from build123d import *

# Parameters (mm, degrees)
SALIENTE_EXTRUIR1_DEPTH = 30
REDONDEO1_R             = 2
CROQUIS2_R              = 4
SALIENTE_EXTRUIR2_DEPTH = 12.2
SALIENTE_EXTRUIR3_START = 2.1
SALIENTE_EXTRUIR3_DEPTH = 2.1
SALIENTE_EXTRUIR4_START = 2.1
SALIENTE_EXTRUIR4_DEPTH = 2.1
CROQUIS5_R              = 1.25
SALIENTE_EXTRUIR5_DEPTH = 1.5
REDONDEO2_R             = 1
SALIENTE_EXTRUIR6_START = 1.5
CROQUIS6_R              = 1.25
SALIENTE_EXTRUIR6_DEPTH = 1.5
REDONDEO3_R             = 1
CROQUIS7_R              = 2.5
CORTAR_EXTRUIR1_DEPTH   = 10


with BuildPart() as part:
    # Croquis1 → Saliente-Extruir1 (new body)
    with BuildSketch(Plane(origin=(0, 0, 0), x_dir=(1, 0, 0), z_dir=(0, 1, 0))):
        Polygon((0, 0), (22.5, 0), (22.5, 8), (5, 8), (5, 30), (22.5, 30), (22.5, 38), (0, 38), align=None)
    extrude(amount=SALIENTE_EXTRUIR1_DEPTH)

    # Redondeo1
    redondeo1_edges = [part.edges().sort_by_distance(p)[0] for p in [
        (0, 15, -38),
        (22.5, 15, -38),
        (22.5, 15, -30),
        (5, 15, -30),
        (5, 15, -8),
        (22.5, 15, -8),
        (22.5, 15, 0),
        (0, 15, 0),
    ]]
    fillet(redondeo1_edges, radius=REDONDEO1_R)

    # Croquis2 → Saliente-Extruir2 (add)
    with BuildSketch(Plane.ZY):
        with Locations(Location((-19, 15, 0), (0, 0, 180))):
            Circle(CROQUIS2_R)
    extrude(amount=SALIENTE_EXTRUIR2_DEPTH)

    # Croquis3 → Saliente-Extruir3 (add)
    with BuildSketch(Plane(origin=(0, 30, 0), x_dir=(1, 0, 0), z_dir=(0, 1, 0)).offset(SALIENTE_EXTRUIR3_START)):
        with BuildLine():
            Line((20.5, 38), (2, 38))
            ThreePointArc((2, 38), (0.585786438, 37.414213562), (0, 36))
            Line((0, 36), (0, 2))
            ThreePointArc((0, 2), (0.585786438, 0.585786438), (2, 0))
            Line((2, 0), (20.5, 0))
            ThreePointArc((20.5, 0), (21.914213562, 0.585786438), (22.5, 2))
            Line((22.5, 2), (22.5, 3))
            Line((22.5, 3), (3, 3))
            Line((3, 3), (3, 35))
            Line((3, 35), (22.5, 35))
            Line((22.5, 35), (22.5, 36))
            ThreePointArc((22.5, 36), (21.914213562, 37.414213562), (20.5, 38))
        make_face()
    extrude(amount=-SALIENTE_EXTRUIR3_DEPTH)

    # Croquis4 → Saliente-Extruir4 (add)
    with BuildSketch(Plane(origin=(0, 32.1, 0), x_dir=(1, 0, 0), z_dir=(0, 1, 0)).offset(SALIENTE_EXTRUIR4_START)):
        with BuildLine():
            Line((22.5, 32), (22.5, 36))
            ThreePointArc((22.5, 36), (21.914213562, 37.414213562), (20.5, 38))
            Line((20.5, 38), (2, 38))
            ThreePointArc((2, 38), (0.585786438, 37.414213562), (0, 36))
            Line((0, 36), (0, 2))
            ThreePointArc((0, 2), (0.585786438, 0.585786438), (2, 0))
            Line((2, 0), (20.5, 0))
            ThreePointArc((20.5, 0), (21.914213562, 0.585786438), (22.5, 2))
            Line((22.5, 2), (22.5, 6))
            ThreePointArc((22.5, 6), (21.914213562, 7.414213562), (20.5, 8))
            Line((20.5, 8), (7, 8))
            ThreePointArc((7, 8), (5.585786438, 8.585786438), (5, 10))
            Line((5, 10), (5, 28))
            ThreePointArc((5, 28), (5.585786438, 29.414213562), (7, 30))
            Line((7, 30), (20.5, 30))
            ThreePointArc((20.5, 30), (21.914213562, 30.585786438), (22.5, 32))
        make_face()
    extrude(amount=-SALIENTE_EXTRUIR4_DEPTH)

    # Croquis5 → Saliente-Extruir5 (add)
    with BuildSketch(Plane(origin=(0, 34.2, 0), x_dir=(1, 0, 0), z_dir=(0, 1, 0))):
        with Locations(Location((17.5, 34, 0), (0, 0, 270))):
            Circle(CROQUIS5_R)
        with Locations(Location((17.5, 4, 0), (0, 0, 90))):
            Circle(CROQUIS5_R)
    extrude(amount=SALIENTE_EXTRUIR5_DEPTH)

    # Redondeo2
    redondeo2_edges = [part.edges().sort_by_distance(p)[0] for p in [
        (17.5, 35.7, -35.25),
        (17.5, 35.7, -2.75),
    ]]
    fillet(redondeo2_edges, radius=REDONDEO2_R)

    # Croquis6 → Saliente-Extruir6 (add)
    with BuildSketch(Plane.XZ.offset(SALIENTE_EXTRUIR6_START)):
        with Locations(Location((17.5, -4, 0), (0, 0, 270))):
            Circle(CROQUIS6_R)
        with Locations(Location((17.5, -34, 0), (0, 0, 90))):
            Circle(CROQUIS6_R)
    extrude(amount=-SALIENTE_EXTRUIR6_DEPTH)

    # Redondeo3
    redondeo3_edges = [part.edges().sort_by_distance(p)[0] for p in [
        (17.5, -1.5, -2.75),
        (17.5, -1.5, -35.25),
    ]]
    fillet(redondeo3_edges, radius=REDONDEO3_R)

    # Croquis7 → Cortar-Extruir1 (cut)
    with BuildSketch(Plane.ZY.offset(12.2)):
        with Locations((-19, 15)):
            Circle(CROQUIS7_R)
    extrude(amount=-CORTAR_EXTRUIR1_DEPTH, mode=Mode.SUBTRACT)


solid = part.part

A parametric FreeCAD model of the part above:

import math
import FreeCAD as App
import Part
import Sketcher

V = App.Vector
Q = App.Units.Quantity


def edges_at(feature, points):
    """Names of the edges that pass closest to the given points."""
    edges = feature.Shape.Edges
    near = lambda p: min(range(len(edges)), key=lambda i: edges[i].distToShape(Part.Vertex(*p))[0])
    return sorted({f"Edge{near(p) + 1}" for p in points})


def add_polygon(sketch, points):
    """Adds a closed chain of lines whose ends are joined by coincident constraints."""
    first, n = sketch.GeometryCount, len(points)
    for a, b in zip(points, points[1:] + points[:1]):
        sketch.addGeometry(Part.LineSegment(App.Vector(*a, 0), App.Vector(*b, 0)), False)
    for i in range(n):
        sketch.addConstraint(Sketcher.Constraint("Coincident", first + i, 2, first + (i + 1) % n, 1))

doc = App.newDocument("Part")
body = doc.addObject("PartDesign::Body", "Body")

# Sketch on XZ plane
sketch1 = body.newObject("Sketcher::SketchObject", "Sketch")
sketch1.AttachmentSupport = (doc.getObject("XZ_Plane"), [""])
sketch1.MapMode = "FlatFace"
add_polygon(sketch1, [(0, 0), (22, 0), (22, -8), (5, -8), (5, -30), (22, -30), (22, -38), (0, -38)])  # lines 0-7
sketch1.addConstraint(Sketcher.Constraint("Horizontal", 0))
sketch1.addConstraint(Sketcher.Constraint("Vertical", 1))
sketch1.addConstraint(Sketcher.Constraint("Horizontal", 2))
sketch1.addConstraint(Sketcher.Constraint("Vertical", 3))
sketch1.addConstraint(Sketcher.Constraint("Horizontal", 4))
sketch1.addConstraint(Sketcher.Constraint("Vertical", 5))
sketch1.addConstraint(Sketcher.Constraint("Horizontal", 6))
sketch1.addConstraint(Sketcher.Constraint("Vertical", 7))
sketch1.addConstraint(Sketcher.Constraint("Coincident", 7, 2, -1, 1))
sketch1.addConstraint(Sketcher.Constraint("Vertical", 1, 2, 4, 2))
sketch1.addConstraint(Sketcher.Constraint("Equal", 1, 5))
sketch1.addConstraint(Sketcher.Constraint("DistanceY", 1, 2, 1, 1, Q("8 mm")))
sketch1.addConstraint(Sketcher.Constraint("DistanceY", 3, 2, 3, 1, Q("22 mm")))
sketch1.addConstraint(Sketcher.Constraint("DistanceX", 0, 1, 0, 2, Q("22.5 mm")))
sketch1.addConstraint(Sketcher.Constraint("DistanceX", 2, 2, 2, 1, Q("17.5 mm")))
pad1 = body.newObject("PartDesign::Pad", "Pad")
pad1.Profile = sketch1
pad1.Length = 30
pad1.Reversed = True
doc.recompute()

fillet = body.newObject("PartDesign::Fillet", "Fillet")
fillet.Base = (pad1, edges_at(pad1, [
    (0, 15, -38),
    (22.5, 15, -38),
    (22.5, 15, -30),
    (5, 15, -30),
    (5, 15, -8),
    (22.5, 15, -8),
    (22.5, 15, 0),
    (0, 15, 0),
]))
fillet.Radius = 2

# Sketch on YZ plane
sketch2 = body.newObject("Sketcher::SketchObject", "Sketch001")
sketch2.AttachmentSupport = (doc.getObject("YZ_Plane"), [""])
sketch2.MapMode = "FlatFace"
sketch2.addGeometry(Part.Circle(V(15, -19, 0), V(0, 0, 1), 4), False)
sketch2.addConstraint(Sketcher.Constraint("Diameter", 0, Q("8 mm")))
sketch2.addConstraint(Sketcher.Constraint("DistanceX", -1, 1, 0, 3, Q("15 mm")))
sketch2.addConstraint(Sketcher.Constraint("DistanceY", 0, 3, -1, 1, Q("19 mm")))
pad2 = body.newObject("PartDesign::Pad", "Pad001")
pad2.Profile = sketch2
pad2.Length = 12.2
pad2.Reversed = True

# Sketch on XZ plane
sketch3 = body.newObject("Sketcher::SketchObject", "Sketch002")
sketch3.AttachmentSupport = (doc.getObject("XZ_Plane"), [""])
sketch3.MapMode = "FlatFace"
sketch3.AttachmentOffset = App.Placement(V(0, 0, -32.1), App.Rotation())
sketch3.addGeometry(Part.LineSegment(V(20.5, -38, 0), V(2, -38, 0)), False)
sketch3.addGeometry(Part.ArcOfCircle(Part.Circle(V(2, -36, 0), V(0, 0, 1), 2), math.radians(-180), math.radians(-90)), False)
sketch3.addGeometry(Part.LineSegment(V(0, -36, 0), V(0, -2, 0)), False)
sketch3.addGeometry(Part.ArcOfCircle(Part.Circle(V(2, -2, 0), V(0, 0, 1), 2), math.radians(90), math.radians(180)), False)
sketch3.addGeometry(Part.LineSegment(V(2, 0, 0), V(20.5, 0, 0)), False)
sketch3.addGeometry(Part.ArcOfCircle(Part.Circle(V(20.5, -2, 0), V(0, 0, 1), 2), math.radians(0), math.radians(90)), False)
sketch3.addGeometry(Part.LineSegment(V(22.5, -2, 0), V(22.5, -3, 0)), False)
sketch3.addGeometry(Part.LineSegment(V(22.5, -3, 0), V(3, -3, 0)), False)
sketch3.addGeometry(Part.LineSegment(V(3, -3, 0), V(3, -35, 0)), False)
sketch3.addGeometry(Part.LineSegment(V(3, -35, 0), V(22.5, -35, 0)), False)
sketch3.addGeometry(Part.LineSegment(V(22.5, -35, 0), V(22.5, -36, 0)), False)
sketch3.addGeometry(Part.ArcOfCircle(Part.Circle(V(20.5, -36, 0), V(0, 0, 1), 2), math.radians(-90), math.radians(0)), False)
sketch3.addConstraint(Sketcher.Constraint("Tangent", 0, 2, 1, 2))
sketch3.addConstraint(Sketcher.Constraint("Tangent", 1, 1, 2, 1))
sketch3.addConstraint(Sketcher.Constraint("Tangent", 2, 2, 3, 2))
sketch3.addConstraint(Sketcher.Constraint("Tangent", 3, 1, 4, 1))
sketch3.addConstraint(Sketcher.Constraint("Tangent", 4, 2, 5, 2))
sketch3.addConstraint(Sketcher.Constraint("Tangent", 5, 1, 6, 1))
sketch3.addConstraint(Sketcher.Constraint("Coincident", 6, 2, 7, 1))
sketch3.addConstraint(Sketcher.Constraint("Coincident", 7, 2, 8, 1))
sketch3.addConstraint(Sketcher.Constraint("Coincident", 8, 2, 9, 1))
sketch3.addConstraint(Sketcher.Constraint("Coincident", 9, 2, 10, 1))
sketch3.addConstraint(Sketcher.Constraint("Tangent", 10, 2, 11, 2))
sketch3.addConstraint(Sketcher.Constraint("Tangent", 11, 1, 0, 1))
sketch3.addConstraint(Sketcher.Constraint("Horizontal", 0))
sketch3.addConstraint(Sketcher.Constraint("Vertical", 2))
sketch3.addConstraint(Sketcher.Constraint("Horizontal", 4))
sketch3.addConstraint(Sketcher.Constraint("Vertical", 6))
sketch3.addConstraint(Sketcher.Constraint("Horizontal", 7))
sketch3.addConstraint(Sketcher.Constraint("Vertical", 8))
sketch3.addConstraint(Sketcher.Constraint("Horizontal", 9))
sketch3.addConstraint(Sketcher.Constraint("Vertical", 10))
sketch3.addConstraint(Sketcher.Constraint("Equal", 1, 3))
sketch3.addConstraint(Sketcher.Constraint("Equal", 3, 5))
sketch3.addConstraint(Sketcher.Constraint("Equal", 5, 11))
sketch3.addConstraint(Sketcher.Constraint("PointOnObject", 1, 1, -2))
sketch3.addConstraint(Sketcher.Constraint("PointOnObject", 3, 1, -1))
sketch3.addConstraint(Sketcher.Constraint("Vertical", 5, 3, 11, 3))
sketch3.addConstraint(Sketcher.Constraint("Equal", 6, 10))
sketch3.addConstraint(Sketcher.Constraint("Radius", 1, Q("2 mm")))
sketch3.addConstraint(Sketcher.Constraint("DistanceY", 2, 1, 2, 2, Q("34 mm")))
sketch3.addConstraint(Sketcher.Constraint("DistanceY", 6, 2, 6, 1, Q("1 mm")))
sketch3.addConstraint(Sketcher.Constraint("DistanceX", 0, 2, 0, 1, Q("18.5 mm")))
sketch3.addConstraint(Sketcher.Constraint("DistanceX", 7, 2, 7, 1, Q("19.5 mm")))
pad3 = body.newObject("PartDesign::Pad", "Pad002")
pad3.Profile = sketch3
pad3.Length = 2.1

# Sketch on XZ plane
sketch4 = body.newObject("Sketcher::SketchObject", "Sketch003")
sketch4.AttachmentSupport = (doc.getObject("XZ_Plane"), [""])
sketch4.MapMode = "FlatFace"
sketch4.AttachmentOffset = App.Placement(V(0, 0, -34.2), App.Rotation())
sketch4.addGeometry(Part.LineSegment(V(22.5, -32, 0), V(22.5, -36, 0)), False)
sketch4.addGeometry(Part.ArcOfCircle(Part.Circle(V(20.5, -36, 0), V(0, 0, 1), 2), math.radians(-90), math.radians(0)), False)
sketch4.addGeometry(Part.LineSegment(V(20.5, -38, 0), V(2, -38, 0)), False)
sketch4.addGeometry(Part.ArcOfCircle(Part.Circle(V(2, -36, 0), V(0, 0, 1), 2), math.radians(-180), math.radians(-90)), False)
sketch4.addGeometry(Part.LineSegment(V(0, -36, 0), V(0, -2, 0)), False)
sketch4.addGeometry(Part.ArcOfCircle(Part.Circle(V(2, -2, 0), V(0, 0, 1), 2), math.radians(90), math.radians(180)), False)
sketch4.addGeometry(Part.LineSegment(V(2, 0, 0), V(20.5, 0, 0)), False)
sketch4.addGeometry(Part.ArcOfCircle(Part.Circle(V(20.5, -2, 0), V(0, 0, 1), 2), math.radians(0), math.radians(90)), False)
sketch4.addGeometry(Part.LineSegment(V(22.5, -2, 0), V(22.5, -6, 0)), False)
sketch4.addGeometry(Part.ArcOfCircle(Part.Circle(V(20.5, -6, 0), V(0, 0, 1), 2), math.radians(-90), math.radians(0)), False)
sketch4.addGeometry(Part.LineSegment(V(20.5, -8, 0), V(7, -8, 0)), False)
sketch4.addGeometry(Part.ArcOfCircle(Part.Circle(V(7, -10, 0), V(0, 0, 1), 2), math.radians(90), math.radians(180)), False)
sketch4.addGeometry(Part.LineSegment(V(5, -10, 0), V(5, -28, 0)), False)
sketch4.addGeometry(Part.ArcOfCircle(Part.Circle(V(7, -28, 0), V(0, 0, 1), 2), math.radians(-180), math.radians(-90)), False)
sketch4.addGeometry(Part.LineSegment(V(7, -30, 0), V(20.5, -30, 0)), False)
sketch4.addGeometry(Part.ArcOfCircle(Part.Circle(V(20.5, -32, 0), V(0, 0, 1), 2), math.radians(0), math.radians(90)), False)
sketch4.addConstraint(Sketcher.Constraint("Tangent", 0, 2, 1, 2))
sketch4.addConstraint(Sketcher.Constraint("Tangent", 1, 1, 2, 1))
sketch4.addConstraint(Sketcher.Constraint("Tangent", 2, 2, 3, 2))
sketch4.addConstraint(Sketcher.Constraint("Tangent", 3, 1, 4, 1))
sketch4.addConstraint(Sketcher.Constraint("Tangent", 4, 2, 5, 2))
sketch4.addConstraint(Sketcher.Constraint("Tangent", 5, 1, 6, 1))
sketch4.addConstraint(Sketcher.Constraint("Tangent", 6, 2, 7, 2))
sketch4.addConstraint(Sketcher.Constraint("Tangent", 7, 1, 8, 1))
sketch4.addConstraint(Sketcher.Constraint("Tangent", 8, 2, 9, 2))
sketch4.addConstraint(Sketcher.Constraint("Tangent", 9, 1, 10, 1))
sketch4.addConstraint(Sketcher.Constraint("Tangent", 10, 2, 11, 1))
sketch4.addConstraint(Sketcher.Constraint("Tangent", 11, 2, 12, 1))
sketch4.addConstraint(Sketcher.Constraint("Tangent", 12, 2, 13, 1))
sketch4.addConstraint(Sketcher.Constraint("Tangent", 13, 2, 14, 1))
sketch4.addConstraint(Sketcher.Constraint("Tangent", 14, 2, 15, 2))
sketch4.addConstraint(Sketcher.Constraint("Tangent", 15, 1, 0, 1))
sketch4.addConstraint(Sketcher.Constraint("Vertical", 0))
sketch4.addConstraint(Sketcher.Constraint("Horizontal", 2))
sketch4.addConstraint(Sketcher.Constraint("Vertical", 4))
sketch4.addConstraint(Sketcher.Constraint("Horizontal", 6))
sketch4.addConstraint(Sketcher.Constraint("Vertical", 8))
sketch4.addConstraint(Sketcher.Constraint("Horizontal", 10))
sketch4.addConstraint(Sketcher.Constraint("Vertical", 12))
sketch4.addConstraint(Sketcher.Constraint("Horizontal", 14))
sketch4.addConstraint(Sketcher.Constraint("Equal", 1, 3))
sketch4.addConstraint(Sketcher.Constraint("Equal", 3, 5))
sketch4.addConstraint(Sketcher.Constraint("Equal", 5, 7))
sketch4.addConstraint(Sketcher.Constraint("Equal", 7, 9))
sketch4.addConstraint(Sketcher.Constraint("Equal", 9, 11))
sketch4.addConstraint(Sketcher.Constraint("Equal", 11, 13))
sketch4.addConstraint(Sketcher.Constraint("Equal", 13, 15))
sketch4.addConstraint(Sketcher.Constraint("PointOnObject", 3, 1, -2))
sketch4.addConstraint(Sketcher.Constraint("PointOnObject", 5, 1, -1))
sketch4.addConstraint(Sketcher.Constraint("Vertical", 1, 3, 7, 3))
sketch4.addConstraint(Sketcher.Constraint("Equal", 0, 8))
sketch4.addConstraint(Sketcher.Constraint("Radius", 1, Q("2 mm")))
sketch4.addConstraint(Sketcher.Constraint("DistanceY", 0, 2, 0, 1, Q("4 mm")))
sketch4.addConstraint(Sketcher.Constraint("DistanceY", 4, 1, 4, 2, Q("34 mm")))
sketch4.addConstraint(Sketcher.Constraint("DistanceX", 2, 2, 2, 1, Q("18.5 mm")))
sketch4.addConstraint(Sketcher.Constraint("DistanceX", 10, 2, 10, 1, Q("13.5 mm")))
pad4 = body.newObject("PartDesign::Pad", "Pad003")
pad4.Profile = sketch4
pad4.Length = 2.1

# Sketch on XZ plane
sketch5 = body.newObject("Sketcher::SketchObject", "Sketch004")
sketch5.AttachmentSupport = (doc.getObject("XZ_Plane"), [""])
sketch5.MapMode = "FlatFace"
sketch5.AttachmentOffset = App.Placement(V(0, 0, -34.2), App.Rotation())
sketch5.addGeometry(Part.Circle(V(17.5, -34, 0), V(0, 0, 1), 1.2), False)
sketch5.addGeometry(Part.Circle(V(17.5, -4, 0), V(0, 0, 1), 1.2), False)
sketch5.addConstraint(Sketcher.Constraint("Equal", 0, 1))
sketch5.addConstraint(Sketcher.Constraint("Vertical", 0, 3, 1, 3))
sketch5.addConstraint(Sketcher.Constraint("Diameter", 0, Q("2.5 mm")))
sketch5.addConstraint(Sketcher.Constraint("DistanceY", 0, 3, -1, 1, Q("34 mm")))
sketch5.addConstraint(Sketcher.Constraint("DistanceY", 1, 3, -1, 1, Q("4 mm")))
sketch5.addConstraint(Sketcher.Constraint("DistanceX", -1, 1, 0, 3, Q("17.5 mm")))
pad5 = body.newObject("PartDesign::Pad", "Pad004")
pad5.Profile = sketch5
pad5.Length = 1.5
pad5.Reversed = True
doc.recompute()

fillet2 = body.newObject("PartDesign::Fillet", "Fillet001")
fillet2.Base = (pad5, edges_at(pad5, [(17.5, 35.7, -35.25), (17.5, 35.7, -2.75)]))
fillet2.Radius = 1

# Sketch on XZ plane
sketch6 = body.newObject("Sketcher::SketchObject", "Sketch005")
sketch6.AttachmentSupport = (doc.getObject("XZ_Plane"), [""])
sketch6.MapMode = "FlatFace"
sketch6.AttachmentOffset = App.Placement(V(0, 0, 1.5), App.Rotation())
sketch6.addGeometry(Part.Circle(V(17.5, -4, 0), V(0, 0, 1), 1.2), False)
sketch6.addGeometry(Part.Circle(V(17.5, -34, 0), V(0, 0, 1), 1.2), False)
sketch6.addConstraint(Sketcher.Constraint("Equal", 0, 1))
sketch6.addConstraint(Sketcher.Constraint("Vertical", 0, 3, 1, 3))
sketch6.addConstraint(Sketcher.Constraint("Diameter", 0, Q("2.5 mm")))
sketch6.addConstraint(Sketcher.Constraint("DistanceY", 0, 3, -1, 1, Q("4 mm")))
sketch6.addConstraint(Sketcher.Constraint("DistanceY", 1, 3, -1, 1, Q("34 mm")))
sketch6.addConstraint(Sketcher.Constraint("DistanceX", -1, 1, 0, 3, Q("17.5 mm")))
pad6 = body.newObject("PartDesign::Pad", "Pad005")
pad6.Profile = sketch6
pad6.Length = 1.5
pad6.Reversed = True
doc.recompute()

fillet3 = body.newObject("PartDesign::Fillet", "Fillet002")
fillet3.Base = (pad6, edges_at(pad6, [(17.5, -1.5, -2.75), (17.5, -1.5, -35.25)]))
fillet3.Radius = 1

# Sketch on YZ plane
sketch7 = body.newObject("Sketcher::SketchObject", "Sketch006")
sketch7.AttachmentSupport = (doc.getObject("YZ_Plane"), [""])
sketch7.MapMode = "FlatFace"
sketch7.AttachmentOffset = App.Placement(V(0, 0, -12.2), App.Rotation())
sketch7.addGeometry(Part.Circle(V(15, -19, 0), V(0, 0, 1), 2.5), False)
sketch7.addConstraint(Sketcher.Constraint("Diameter", 0, Q("5 mm")))
sketch7.addConstraint(Sketcher.Constraint("DistanceX", -1, 1, 0, 3, Q("15 mm")))
sketch7.addConstraint(Sketcher.Constraint("DistanceY", 0, 3, -1, 1, Q("19 mm")))
pocket1 = body.newObject("PartDesign::Pocket", "Pocket")
pocket1.Profile = sketch7
pocket1.Length = 10
pocket1.Reversed = True

doc.recompute()
